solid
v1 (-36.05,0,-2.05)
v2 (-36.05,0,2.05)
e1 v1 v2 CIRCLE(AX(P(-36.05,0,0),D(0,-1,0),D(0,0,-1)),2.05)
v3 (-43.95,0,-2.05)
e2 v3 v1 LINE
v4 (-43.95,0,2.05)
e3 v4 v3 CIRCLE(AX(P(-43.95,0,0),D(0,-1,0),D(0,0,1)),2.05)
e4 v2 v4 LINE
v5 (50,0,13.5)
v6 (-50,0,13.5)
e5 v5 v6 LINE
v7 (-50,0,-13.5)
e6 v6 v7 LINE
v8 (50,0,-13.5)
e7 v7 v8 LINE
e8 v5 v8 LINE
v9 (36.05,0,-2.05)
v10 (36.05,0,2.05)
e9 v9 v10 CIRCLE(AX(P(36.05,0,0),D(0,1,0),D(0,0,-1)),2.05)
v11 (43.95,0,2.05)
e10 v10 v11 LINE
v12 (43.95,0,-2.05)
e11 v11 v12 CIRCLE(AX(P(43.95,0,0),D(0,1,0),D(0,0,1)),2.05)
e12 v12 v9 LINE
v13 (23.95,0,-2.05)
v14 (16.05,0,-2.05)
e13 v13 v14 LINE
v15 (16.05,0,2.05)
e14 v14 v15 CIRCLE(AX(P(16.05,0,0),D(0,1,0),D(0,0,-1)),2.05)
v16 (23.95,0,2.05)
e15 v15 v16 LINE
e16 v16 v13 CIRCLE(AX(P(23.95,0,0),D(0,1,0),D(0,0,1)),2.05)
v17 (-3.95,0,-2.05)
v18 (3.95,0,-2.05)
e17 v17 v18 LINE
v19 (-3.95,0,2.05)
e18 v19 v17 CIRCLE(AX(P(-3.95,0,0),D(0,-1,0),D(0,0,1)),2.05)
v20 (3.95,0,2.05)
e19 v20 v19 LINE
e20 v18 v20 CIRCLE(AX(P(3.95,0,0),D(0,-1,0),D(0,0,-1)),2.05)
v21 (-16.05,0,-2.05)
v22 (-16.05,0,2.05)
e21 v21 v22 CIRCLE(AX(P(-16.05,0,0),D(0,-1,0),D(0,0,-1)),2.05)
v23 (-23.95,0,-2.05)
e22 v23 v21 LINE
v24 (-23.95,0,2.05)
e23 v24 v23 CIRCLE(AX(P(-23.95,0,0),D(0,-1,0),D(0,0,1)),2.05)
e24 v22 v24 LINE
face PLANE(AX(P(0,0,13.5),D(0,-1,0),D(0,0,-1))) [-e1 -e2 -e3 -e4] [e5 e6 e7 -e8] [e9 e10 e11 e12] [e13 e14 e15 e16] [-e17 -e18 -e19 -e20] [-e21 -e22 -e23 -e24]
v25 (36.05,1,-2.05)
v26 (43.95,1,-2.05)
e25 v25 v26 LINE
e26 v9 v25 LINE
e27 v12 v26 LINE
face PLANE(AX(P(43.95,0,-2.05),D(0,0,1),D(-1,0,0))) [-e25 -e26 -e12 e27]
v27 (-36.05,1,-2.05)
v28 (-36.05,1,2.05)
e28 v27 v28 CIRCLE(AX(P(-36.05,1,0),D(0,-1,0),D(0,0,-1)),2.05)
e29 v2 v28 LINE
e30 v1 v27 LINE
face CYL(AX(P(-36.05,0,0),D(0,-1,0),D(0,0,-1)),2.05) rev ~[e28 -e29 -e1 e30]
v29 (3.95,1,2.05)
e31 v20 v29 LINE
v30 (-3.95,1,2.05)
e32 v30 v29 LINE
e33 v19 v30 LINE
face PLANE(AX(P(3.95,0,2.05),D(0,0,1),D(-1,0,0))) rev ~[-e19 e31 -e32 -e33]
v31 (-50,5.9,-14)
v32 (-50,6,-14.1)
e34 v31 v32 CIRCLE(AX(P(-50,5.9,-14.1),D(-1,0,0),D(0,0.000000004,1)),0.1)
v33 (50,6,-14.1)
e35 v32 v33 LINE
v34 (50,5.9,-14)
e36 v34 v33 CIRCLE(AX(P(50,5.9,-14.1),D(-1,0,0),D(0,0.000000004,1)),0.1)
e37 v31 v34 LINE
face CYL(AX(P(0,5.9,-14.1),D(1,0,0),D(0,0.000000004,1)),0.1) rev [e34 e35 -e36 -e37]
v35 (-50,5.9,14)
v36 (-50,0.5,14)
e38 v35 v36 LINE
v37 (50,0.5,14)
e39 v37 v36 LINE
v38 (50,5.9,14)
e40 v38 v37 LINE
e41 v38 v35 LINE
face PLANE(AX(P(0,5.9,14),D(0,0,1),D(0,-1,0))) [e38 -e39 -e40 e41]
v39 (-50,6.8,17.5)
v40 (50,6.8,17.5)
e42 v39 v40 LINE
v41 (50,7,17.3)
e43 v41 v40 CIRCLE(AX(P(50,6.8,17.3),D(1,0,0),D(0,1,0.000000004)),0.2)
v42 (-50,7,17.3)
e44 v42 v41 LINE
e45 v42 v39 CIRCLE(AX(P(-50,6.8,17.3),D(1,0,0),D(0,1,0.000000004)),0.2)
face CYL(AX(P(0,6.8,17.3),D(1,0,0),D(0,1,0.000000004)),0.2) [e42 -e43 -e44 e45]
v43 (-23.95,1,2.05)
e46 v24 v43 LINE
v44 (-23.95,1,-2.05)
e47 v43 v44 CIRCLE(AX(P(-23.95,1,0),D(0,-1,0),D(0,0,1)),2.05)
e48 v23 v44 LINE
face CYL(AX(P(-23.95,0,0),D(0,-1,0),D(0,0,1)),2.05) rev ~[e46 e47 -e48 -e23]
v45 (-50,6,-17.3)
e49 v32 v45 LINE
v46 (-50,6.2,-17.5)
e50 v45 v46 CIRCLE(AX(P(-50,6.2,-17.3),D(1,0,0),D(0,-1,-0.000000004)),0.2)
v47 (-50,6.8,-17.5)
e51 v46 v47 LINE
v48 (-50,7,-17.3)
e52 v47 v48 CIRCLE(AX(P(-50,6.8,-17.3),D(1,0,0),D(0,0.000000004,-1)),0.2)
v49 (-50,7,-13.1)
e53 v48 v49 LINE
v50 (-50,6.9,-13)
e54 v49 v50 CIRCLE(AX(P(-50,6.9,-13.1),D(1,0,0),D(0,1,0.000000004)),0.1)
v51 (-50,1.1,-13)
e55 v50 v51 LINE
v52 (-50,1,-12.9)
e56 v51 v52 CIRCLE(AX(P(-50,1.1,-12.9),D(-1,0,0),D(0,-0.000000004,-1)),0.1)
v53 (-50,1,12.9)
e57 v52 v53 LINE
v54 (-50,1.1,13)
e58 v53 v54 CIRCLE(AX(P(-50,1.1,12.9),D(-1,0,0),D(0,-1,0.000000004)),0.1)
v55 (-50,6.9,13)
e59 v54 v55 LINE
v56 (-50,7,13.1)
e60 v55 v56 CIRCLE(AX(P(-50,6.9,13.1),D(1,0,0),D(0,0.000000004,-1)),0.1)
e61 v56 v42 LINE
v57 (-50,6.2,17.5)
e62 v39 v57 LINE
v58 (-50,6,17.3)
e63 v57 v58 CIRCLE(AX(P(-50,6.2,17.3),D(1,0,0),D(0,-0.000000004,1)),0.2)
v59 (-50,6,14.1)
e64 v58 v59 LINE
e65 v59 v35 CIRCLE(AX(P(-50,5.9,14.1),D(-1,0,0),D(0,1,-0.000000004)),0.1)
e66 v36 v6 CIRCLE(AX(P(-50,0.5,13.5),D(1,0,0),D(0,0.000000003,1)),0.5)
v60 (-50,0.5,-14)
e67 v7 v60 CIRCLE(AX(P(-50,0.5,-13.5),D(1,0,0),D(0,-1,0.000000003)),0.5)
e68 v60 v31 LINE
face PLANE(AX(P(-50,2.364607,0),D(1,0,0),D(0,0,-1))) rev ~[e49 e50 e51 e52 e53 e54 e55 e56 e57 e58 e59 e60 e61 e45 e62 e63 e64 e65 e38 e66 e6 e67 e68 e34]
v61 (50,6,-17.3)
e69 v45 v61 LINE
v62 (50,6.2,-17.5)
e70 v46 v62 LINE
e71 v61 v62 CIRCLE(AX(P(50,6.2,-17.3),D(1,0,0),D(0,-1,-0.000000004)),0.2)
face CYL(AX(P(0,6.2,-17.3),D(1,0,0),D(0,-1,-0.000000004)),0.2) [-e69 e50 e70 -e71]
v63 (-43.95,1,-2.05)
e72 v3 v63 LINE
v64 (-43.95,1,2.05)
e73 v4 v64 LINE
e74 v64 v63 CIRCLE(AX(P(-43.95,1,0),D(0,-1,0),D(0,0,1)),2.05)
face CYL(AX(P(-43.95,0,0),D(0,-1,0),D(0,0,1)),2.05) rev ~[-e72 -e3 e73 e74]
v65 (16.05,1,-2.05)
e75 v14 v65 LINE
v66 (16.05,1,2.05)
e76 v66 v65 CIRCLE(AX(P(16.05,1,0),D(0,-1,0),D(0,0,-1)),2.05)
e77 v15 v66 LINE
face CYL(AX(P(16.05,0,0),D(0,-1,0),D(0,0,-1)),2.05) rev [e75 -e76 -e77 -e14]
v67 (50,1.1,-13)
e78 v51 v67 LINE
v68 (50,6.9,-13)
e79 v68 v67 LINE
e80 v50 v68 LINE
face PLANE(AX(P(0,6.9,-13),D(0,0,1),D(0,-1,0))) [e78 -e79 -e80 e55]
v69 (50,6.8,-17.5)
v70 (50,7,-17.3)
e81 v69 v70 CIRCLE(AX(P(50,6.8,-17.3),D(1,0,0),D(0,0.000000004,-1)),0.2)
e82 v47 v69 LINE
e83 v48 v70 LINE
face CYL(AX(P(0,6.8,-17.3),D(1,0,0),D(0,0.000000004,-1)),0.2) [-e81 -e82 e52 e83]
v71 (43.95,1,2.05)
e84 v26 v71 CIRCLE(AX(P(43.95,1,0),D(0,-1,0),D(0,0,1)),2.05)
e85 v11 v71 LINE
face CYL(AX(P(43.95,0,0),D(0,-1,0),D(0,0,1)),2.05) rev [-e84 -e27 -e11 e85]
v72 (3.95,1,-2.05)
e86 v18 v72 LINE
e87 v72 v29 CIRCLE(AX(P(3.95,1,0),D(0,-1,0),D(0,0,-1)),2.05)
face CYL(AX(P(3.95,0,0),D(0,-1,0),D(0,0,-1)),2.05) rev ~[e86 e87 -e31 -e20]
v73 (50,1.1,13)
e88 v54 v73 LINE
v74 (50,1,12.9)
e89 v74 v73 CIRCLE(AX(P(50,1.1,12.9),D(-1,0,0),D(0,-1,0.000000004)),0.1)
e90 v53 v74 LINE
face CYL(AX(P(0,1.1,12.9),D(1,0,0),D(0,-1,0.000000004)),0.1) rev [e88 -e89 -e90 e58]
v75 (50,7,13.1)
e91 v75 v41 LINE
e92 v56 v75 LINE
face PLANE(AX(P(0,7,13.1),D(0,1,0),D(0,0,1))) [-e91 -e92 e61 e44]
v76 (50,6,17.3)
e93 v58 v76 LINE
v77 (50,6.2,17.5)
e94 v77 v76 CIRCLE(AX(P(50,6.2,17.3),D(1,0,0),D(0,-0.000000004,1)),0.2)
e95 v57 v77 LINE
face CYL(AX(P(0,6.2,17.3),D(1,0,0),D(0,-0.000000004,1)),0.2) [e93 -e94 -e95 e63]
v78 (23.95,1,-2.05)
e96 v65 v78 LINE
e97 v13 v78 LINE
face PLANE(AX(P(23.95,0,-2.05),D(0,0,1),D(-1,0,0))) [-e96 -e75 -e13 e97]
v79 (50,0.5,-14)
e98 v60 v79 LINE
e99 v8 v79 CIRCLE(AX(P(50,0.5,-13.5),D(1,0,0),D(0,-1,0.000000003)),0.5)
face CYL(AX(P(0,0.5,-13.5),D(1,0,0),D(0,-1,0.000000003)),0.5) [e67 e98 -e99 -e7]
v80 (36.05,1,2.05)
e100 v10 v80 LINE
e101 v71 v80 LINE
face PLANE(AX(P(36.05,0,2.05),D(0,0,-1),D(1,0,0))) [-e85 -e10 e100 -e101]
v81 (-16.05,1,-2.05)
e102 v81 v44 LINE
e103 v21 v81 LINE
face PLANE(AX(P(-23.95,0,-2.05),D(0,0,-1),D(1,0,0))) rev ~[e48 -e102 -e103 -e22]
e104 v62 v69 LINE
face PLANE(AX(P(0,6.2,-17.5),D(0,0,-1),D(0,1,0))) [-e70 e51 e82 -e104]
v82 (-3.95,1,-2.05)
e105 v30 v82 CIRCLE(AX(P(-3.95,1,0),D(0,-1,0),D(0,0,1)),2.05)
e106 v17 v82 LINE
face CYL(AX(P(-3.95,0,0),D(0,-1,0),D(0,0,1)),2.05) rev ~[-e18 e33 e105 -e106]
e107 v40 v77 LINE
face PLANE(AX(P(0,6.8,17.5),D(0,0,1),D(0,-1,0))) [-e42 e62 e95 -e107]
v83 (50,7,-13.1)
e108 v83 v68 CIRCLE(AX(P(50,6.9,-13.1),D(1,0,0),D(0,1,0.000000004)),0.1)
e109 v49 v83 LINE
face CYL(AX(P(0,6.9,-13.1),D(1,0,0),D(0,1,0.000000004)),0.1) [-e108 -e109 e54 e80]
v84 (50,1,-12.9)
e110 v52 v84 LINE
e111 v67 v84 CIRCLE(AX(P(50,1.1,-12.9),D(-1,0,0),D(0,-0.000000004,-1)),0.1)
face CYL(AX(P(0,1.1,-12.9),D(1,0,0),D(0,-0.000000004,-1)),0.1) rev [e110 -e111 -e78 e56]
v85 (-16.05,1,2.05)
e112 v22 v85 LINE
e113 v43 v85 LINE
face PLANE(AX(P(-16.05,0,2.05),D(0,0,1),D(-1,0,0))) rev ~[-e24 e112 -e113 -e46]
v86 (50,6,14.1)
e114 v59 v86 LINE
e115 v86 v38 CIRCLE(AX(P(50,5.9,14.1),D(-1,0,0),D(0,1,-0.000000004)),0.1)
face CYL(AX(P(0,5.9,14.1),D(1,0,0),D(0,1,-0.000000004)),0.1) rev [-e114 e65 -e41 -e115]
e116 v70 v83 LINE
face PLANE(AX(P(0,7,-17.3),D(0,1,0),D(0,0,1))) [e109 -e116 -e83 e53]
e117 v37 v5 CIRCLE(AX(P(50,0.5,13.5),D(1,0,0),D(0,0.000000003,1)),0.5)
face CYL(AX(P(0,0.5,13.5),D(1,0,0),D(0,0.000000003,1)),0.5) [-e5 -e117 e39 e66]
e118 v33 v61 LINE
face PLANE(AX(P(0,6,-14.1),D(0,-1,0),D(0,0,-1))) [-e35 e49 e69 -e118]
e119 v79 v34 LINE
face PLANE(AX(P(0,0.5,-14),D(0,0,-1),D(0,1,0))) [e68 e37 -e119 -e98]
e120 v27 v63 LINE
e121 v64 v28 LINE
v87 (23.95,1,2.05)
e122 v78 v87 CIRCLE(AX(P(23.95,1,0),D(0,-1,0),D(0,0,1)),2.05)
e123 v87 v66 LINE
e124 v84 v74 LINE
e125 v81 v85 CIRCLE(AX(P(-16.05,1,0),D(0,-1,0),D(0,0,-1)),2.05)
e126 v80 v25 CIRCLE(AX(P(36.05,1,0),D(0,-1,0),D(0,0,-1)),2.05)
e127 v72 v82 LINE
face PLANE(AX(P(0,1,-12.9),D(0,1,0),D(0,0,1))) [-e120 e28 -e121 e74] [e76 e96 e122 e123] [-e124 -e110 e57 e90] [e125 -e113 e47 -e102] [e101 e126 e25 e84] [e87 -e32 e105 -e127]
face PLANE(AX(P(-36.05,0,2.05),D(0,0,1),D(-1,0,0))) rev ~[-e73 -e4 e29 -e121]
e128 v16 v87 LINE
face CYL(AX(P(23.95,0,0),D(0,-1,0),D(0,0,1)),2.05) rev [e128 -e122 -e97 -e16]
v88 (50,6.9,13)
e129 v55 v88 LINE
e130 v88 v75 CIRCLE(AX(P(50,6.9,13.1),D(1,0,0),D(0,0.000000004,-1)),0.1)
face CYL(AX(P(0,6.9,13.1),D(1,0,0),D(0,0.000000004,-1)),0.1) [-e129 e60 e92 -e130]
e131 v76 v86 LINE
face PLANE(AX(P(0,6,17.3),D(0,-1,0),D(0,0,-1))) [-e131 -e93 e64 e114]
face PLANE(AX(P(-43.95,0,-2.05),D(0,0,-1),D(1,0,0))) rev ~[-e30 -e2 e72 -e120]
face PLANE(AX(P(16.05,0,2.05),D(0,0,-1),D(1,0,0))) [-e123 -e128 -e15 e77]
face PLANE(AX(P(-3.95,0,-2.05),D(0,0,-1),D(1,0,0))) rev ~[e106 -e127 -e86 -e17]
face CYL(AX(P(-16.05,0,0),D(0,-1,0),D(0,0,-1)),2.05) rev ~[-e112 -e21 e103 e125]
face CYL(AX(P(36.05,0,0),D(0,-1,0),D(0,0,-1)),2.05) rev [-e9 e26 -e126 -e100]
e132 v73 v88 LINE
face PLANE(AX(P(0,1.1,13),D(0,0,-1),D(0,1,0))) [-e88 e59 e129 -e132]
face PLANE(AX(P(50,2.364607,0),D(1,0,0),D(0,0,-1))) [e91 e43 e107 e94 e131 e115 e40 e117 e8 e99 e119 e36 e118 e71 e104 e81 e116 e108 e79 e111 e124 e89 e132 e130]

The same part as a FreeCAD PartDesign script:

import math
import FreeCAD as App
import Part
import Sketcher

V = App.Vector
Q = App.Units.Quantity

doc = App.newDocument("Part")
body = doc.addObject("PartDesign::Body", "Body")

# Sketch on YZ plane
sketch1 = body.newObject("Sketcher::SketchObject", "Sketch")
sketch1.AttachmentSupport = (doc.getObject("YZ_Plane"), [""])
sketch1.MapMode = "FlatFace"
sketch1.addGeometry([
    Part.LineSegment(V(0, 13.5, 0), V(0, -13.5, 0)),  # 0
    Part.ArcOfCircle(Part.Circle(V(0.5, -13.5, 0), V(0, 0, 1), 0.5), math.radians(180), math.radians(270)),  # 1
    Part.LineSegment(V(0.5, -14, 0), V(5.9, -14, 0)),  # 2
    Part.ArcOfCircle(Part.Circle(V(5.9, -14.1, 0), V(0, 0, 1), 0.1), math.radians(0), math.radians(90)),  # 3
    Part.LineSegment(V(6, -14.1, 0), V(6, -17.3, 0)),  # 4
    Part.ArcOfCircle(Part.Circle(V(6.2, -17.3, 0), V(0, 0, 1), 0.2), math.radians(-180), math.radians(-90)),  # 5
    Part.LineSegment(V(6.2, -17.5, 0), V(6.8, -17.5, 0)),  # 6
    Part.ArcOfCircle(Part.Circle(V(6.8, -17.3, 0), V(0, 0, 1), 0.2), math.radians(-90), math.radians(0)),  # 7
    Part.LineSegment(V(7, -17.3, 0), V(7, -13.1, 0)),  # 8
    Part.ArcOfCircle(Part.Circle(V(6.9, -13.1, 0), V(0, 0, 1), 0.1), math.radians(0), math.radians(90)),  # 9
    Part.LineSegment(V(6.9, -13, 0), V(1.1, -13, 0)),  # 10
    Part.ArcOfCircle(Part.Circle(V(1.1, -12.9, 0), V(0, 0, 1), 0.1), math.radians(180), math.radians(270)),  # 11
    Part.LineSegment(V(1, -12.9, 0), V(1, 12.9, 0)),  # 12
    Part.ArcOfCircle(Part.Circle(V(1.1, 12.9, 0), V(0, 0, 1), 0.1), math.radians(90), math.radians(180)),  # 13
    Part.LineSegment(V(1.1, 13, 0), V(6.9, 13, 0)),  # 14
    Part.ArcOfCircle(Part.Circle(V(6.9, 13.1, 0), V(0, 0, 1), 0.1), math.radians(-90), math.radians(0)),  # 15
    Part.LineSegment(V(7, 13.1, 0), V(7, 17.3, 0)),  # 16
    Part.ArcOfCircle(Part.Circle(V(6.8, 17.3, 0), V(0, 0, 1), 0.2), math.radians(0), math.radians(90)),  # 17
    Part.LineSegment(V(6.8, 17.5, 0), V(6.2, 17.5, 0)),  # 18
    Part.ArcOfCircle(Part.Circle(V(6.2, 17.3, 0), V(0, 0, 1), 0.2), math.radians(90), math.radians(180)),  # 19
    Part.LineSegment(V(6, 17.3, 0), V(6, 14.1, 0)),  # 20
    Part.ArcOfCircle(Part.Circle(V(5.9, 14.1, 0), V(0, 0, 1), 0.1), math.radians(-90), math.radians(0)),  # 21
    Part.LineSegment(V(5.9, 14, 0), V(0.5, 14, 0)),  # 22
    Part.ArcOfCircle(Part.Circle(V(0.5, 13.5, 0), V(0, 0, 1), 0.5), math.radians(90), math.radians(180)),  # 23
], False)
sketch1.addConstraint([
    Sketcher.Constraint("Tangent", 0, 2, 1, 1),
    Sketcher.Constraint("Tangent", 1, 2, 2, 1),
    Sketcher.Constraint("Tangent", 2, 2, 3, 2),
    Sketcher.Constraint("Tangent", 3, 1, 4, 1),
    Sketcher.Constraint("Tangent", 4, 2, 5, 1),
    Sketcher.Constraint("Tangent", 5, 2, 6, 1),
    Sketcher.Constraint("Tangent", 6, 2, 7, 1),
    Sketcher.Constraint("Tangent", 7, 2, 8, 1),
    Sketcher.Constraint("Tangent", 8, 2, 9, 1),
    Sketcher.Constraint("Tangent", 9, 2, 10, 1),
    Sketcher.Constraint("Tangent", 10, 2, 11, 2),
    Sketcher.Constraint("Tangent", 11, 1, 12, 1),
    Sketcher.Constraint("Tangent", 12, 2, 13, 2),
    Sketcher.Constraint("Tangent", 13, 1, 14, 1),
    Sketcher.Constraint("Tangent", 14, 2, 15, 1),
    Sketcher.Constraint("Tangent", 15, 2, 16, 1),
    Sketcher.Constraint("Tangent", 16, 2, 17, 1),
    Sketcher.Constraint("Tangent", 17, 2, 18, 1),
    Sketcher.Constraint("Tangent", 18, 2, 19, 1),
    Sketcher.Constraint("Tangent", 19, 2, 20, 1),
    Sketcher.Constraint("Tangent", 20, 2, 21, 2),
    Sketcher.Constraint("Tangent", 21, 1, 22, 1),
    Sketcher.Constraint("Tangent", 22, 2, 23, 1),
    Sketcher.Constraint("Tangent", 23, 2, 0, 1),
    Sketcher.Constraint("Vertical", 0),
    Sketcher.Constraint("Horizontal", 2),
    Sketcher.Constraint("Vertical", 4),
    Sketcher.Constraint("Horizontal", 6),
    Sketcher.Constraint("Vertical", 8),
    Sketcher.Constraint("Horizontal", 10),
    Sketcher.Constraint("Vertical", 12),
    Sketcher.Constraint("Horizontal", 14),
    Sketcher.Constraint("Vertical", 16),
    Sketcher.Constraint("Horizontal", 18),
    Sketcher.Constraint("Vertical", 20),
    Sketcher.Constraint("Horizontal", 22),
    Sketcher.Constraint("Equal", 5, 7),
    Sketcher.Constraint("Equal", 3, 9),
    Sketcher.Constraint("Equal", 9, 11),
    Sketcher.Constraint("Equal", 11, 13),
    Sketcher.Constraint("Equal", 13, 15),
    Sketcher.Constraint("Equal", 7, 17),
    Sketcher.Constraint("Equal", 17, 19),
    Sketcher.Constraint("Equal", 15, 21),
    Sketcher.Constraint("Equal", 1, 23),
    Sketcher.Constraint("Symmetric", 0, 2, 23, 2, -1, 1),
    Sketcher.Constraint("Symmetric", 9, 3, 15, 3, -1),
    Sketcher.Constraint("Symmetric", 5, 3, 19, 3, -1),
    Sketcher.Constraint("Radius", 1, Q("0.5 mm")),
    Sketcher.Constraint("Radius", 3, Q("0.1 mm")),
    Sketcher.Constraint("Radius", 5, Q("0.2 mm")),
    Sketcher.Constraint("DistanceY", 0, 2, 0, 1, Q("27 mm")),
    Sketcher.Constraint("DistanceX", 2, 1, 2, 2, Q("5.4 mm")),
    Sketcher.Constraint("DistanceX", 6, 1, 6, 2, Q("0.6 mm")),
    Sketcher.Constraint("DistanceX", 10, 2, 10, 1, Q("5.8 mm")),
    Sketcher.Constraint("DistanceY", 4, 2, 4, 1, Q("3.2 mm")),
    Sketcher.Constraint("DistanceY", 8, 1, 8, 2, Q("4.2 mm")),
])
pad1 = body.newObject("PartDesign::Pad", "Pad")
pad1.Profile = sketch1
pad1.Length = 100
pad1.Midplane = True

# Sketch on XZ plane
sketch2 = body.newObject("Sketcher::SketchObject", "Sketch001")
sketch2.AttachmentSupport = (doc.getObject("XZ_Plane"), [""])
sketch2.MapMode = "FlatFace"
sketch2.addGeometry([
    Part.LineSegment(V(3.95, -2.05, 0), V(-3.95, -2.05, 0)),
    Part.ArcOfCircle(Part.Circle(V(-3.95, 0, 0), V(0, 0, 1), 2.05), math.radians(90), math.radians(270)),
    Part.LineSegment(V(-3.95, 2.05, 0), V(3.95, 2.05, 0)),
    Part.ArcOfCircle(Part.Circle(V(3.95, 0, 0), V(0, 0, 1), 2.05), math.radians(-90), math.radians(90)),
], False)
sketch2.addConstraint([
    Sketcher.Constraint("Tangent", 0, 2, 1, 2),
    Sketcher.Constraint("Tangent", 1, 1, 2, 1),
    Sketcher.Constraint("Tangent", 2, 2, 3, 2),
    Sketcher.Constraint("Tangent", 3, 1, 0, 1),
    Sketcher.Constraint("Horizontal", 0),
    Sketcher.Constraint("Horizontal", 2),
    Sketcher.Constraint("Symmetric", 1, 3, 3, 3, -1, 1),
    Sketcher.Constraint("Radius", 1, Q("2.05 mm")),
    Sketcher.Constraint("DistanceX", 0, 2, 0, 1, Q("7.9 mm")),
])
pocket1 = body.newObject("PartDesign::Pocket", "Pocket")
pocket1.Profile = sketch2
pocket1.Type = "ThroughAll"
doc.recompute()

linearpattern = body.newObject("PartDesign::LinearPattern", "LinearPattern")
linearpattern.Originals = [pocket1]
linearpattern.Direction = (doc.getObject("X_Axis"), [""])
linearpattern.Mode = "offset"
linearpattern.Offset = 20
linearpattern.Occurrences = 3
linearpattern.Reversed = True
body.Tip = linearpattern

# Sketch on XZ plane
sketch3 = body.newObject("Sketcher::SketchObject", "Sketch002")
sketch3.AttachmentSupport = (doc.getObject("XZ_Plane"), [""])
sketch3.MapMode = "FlatFace"
sketch3.addGeometry([
    Part.LineSegment(V(23.95, -2.05, 0), V(16.05, -2.05, 0)),
    Part.ArcOfCircle(Part.Circle(V(16.05, 0, 0), V(0, 0, 1), 2.05), math.radians(90), math.radians(270)),
    Part.LineSegment(V(16.05, 2.05, 0), V(23.95, 2.05, 0)),
    Part.ArcOfCircle(Part.Circle(V(23.95, 0, 0), V(0, 0, 1), 2.05), math.radians(-90), math.radians(90)),
], False)
sketch3.addConstraint([
    Sketcher.Constraint("Tangent", 0, 2, 1, 2),
    Sketcher.Constraint("Tangent", 1, 1, 2, 1),
    Sketcher.Constraint("Tangent", 2, 2, 3, 2),
    Sketcher.Constraint("Tangent", 3, 1, 0, 1),
    Sketcher.Constraint("Horizontal", 0),
    Sketcher.Constraint("Horizontal", 2),
    Sketcher.Constraint("PointOnObject", 1, 3, -1),
    Sketcher.Constraint("Radius", 1, Q("2.05 mm")),
    Sketcher.Constraint("DistanceX", 0, 2, 0, 1, Q("7.9 mm")),
    Sketcher.Constraint("DistanceX", -1, 1, 1, 3, Q("16.05 mm")),
])
pocket2 = body.newObject("PartDesign::Pocket", "Pocket001")
pocket2.Profile = sketch3
pocket2.Type = "ThroughAll"

# Sketch on XZ plane
sketch4 = body.newObject("Sketcher::SketchObject", "Sketch003")
sketch4.AttachmentSupport = (doc.getObject("XZ_Plane"), [""])
sketch4.MapMode = "FlatFace"
sketch4.addGeometry([
    Part.LineSegment(V(43.95, -2.05, 0), V(36.05, -2.05, 0)),
    Part.ArcOfCircle(Part.Circle(V(36.05, 0, 0), V(0, 0, 1), 2.05), math.radians(90), math.radians(270)),
    Part.LineSegment(V(36.05, 2.05, 0), V(43.95, 2.05, 0)),
    Part.ArcOfCircle(Part.Circle(V(43.95, 0, 0), V(0, 0, 1), 2.05), math.radians(-90), math.radians(90)),
], False)
sketch4.addConstraint([
    Sketcher.Constraint("Tangent", 0, 2, 1, 2),
    Sketcher.Constraint("Tangent", 1, 1, 2, 1),
    Sketcher.Constraint("Tangent", 2, 2, 3, 2),
    Sketcher.Constraint("Tangent", 3, 1, 0, 1),
    Sketcher.Constraint("Horizontal", 0),
    Sketcher.Constraint("Horizontal", 2),
    Sketcher.Constraint("PointOnObject", 1, 3, -1),
    Sketcher.Constraint("Radius", 1, Q("2.05 mm")),
    Sketcher.Constraint("DistanceX", 0, 2, 0, 1, Q("7.9 mm")),
    Sketcher.Constraint("DistanceX", -1, 1, 1, 3, Q("36.05 mm")),
])
pocket3 = body.newObject("PartDesign::Pocket", "Pocket002")
pocket3.Profile = sketch4
pocket3.Type = "ThroughAll"

# Sketch on XZ plane
sketch5 = body.newObject("Sketcher::SketchObject", "Sketch004")
sketch5.AttachmentSupport = (doc.getObject("XZ_Plane"), [""])
sketch5.MapMode = "FlatFace"
sketch5.addGeometry([
    Part.LineSegment(V(3.95, -2.05, 0), V(-3.95, -2.05, 0)),
    Part.ArcOfCircle(Part.Circle(V(-3.95, 0, 0), V(0, 0, 1), 2.05), math.radians(90), math.radians(270)),
    Part.LineSegment(V(-3.95, 2.05, 0), V(3.95, 2.05, 0)),
    Part.ArcOfCircle(Part.Circle(V(3.95, 0, 0), V(0, 0, 1), 2.05), math.radians(-90), math.radians(90)),
], False)
sketch5.addConstraint([
    Sketcher.Constraint("Tangent", 0, 2, 1, 2),
    Sketcher.Constraint("Tangent", 1, 1, 2, 1),
    Sketcher.Constraint("Tangent", 2, 2, 3, 2),
    Sketcher.Constraint("Tangent", 3, 1, 0, 1),
    Sketcher.Constraint("Horizontal", 0),
    Sketcher.Constraint("Horizontal", 2),
    Sketcher.Constraint("Symmetric", 1, 3, 3, 3, -1, 1),
    Sketcher.Constraint("Radius", 1, Q("2.05 mm")),
    Sketcher.Constraint("DistanceX", 0, 2, 0, 1, Q("7.9 mm")),
])
pocket4 = body.newObject("PartDesign::Pocket", "Pocket003")
pocket4.Profile = sketch5
pocket4.Type = "ThroughAll"

doc.recompute()
